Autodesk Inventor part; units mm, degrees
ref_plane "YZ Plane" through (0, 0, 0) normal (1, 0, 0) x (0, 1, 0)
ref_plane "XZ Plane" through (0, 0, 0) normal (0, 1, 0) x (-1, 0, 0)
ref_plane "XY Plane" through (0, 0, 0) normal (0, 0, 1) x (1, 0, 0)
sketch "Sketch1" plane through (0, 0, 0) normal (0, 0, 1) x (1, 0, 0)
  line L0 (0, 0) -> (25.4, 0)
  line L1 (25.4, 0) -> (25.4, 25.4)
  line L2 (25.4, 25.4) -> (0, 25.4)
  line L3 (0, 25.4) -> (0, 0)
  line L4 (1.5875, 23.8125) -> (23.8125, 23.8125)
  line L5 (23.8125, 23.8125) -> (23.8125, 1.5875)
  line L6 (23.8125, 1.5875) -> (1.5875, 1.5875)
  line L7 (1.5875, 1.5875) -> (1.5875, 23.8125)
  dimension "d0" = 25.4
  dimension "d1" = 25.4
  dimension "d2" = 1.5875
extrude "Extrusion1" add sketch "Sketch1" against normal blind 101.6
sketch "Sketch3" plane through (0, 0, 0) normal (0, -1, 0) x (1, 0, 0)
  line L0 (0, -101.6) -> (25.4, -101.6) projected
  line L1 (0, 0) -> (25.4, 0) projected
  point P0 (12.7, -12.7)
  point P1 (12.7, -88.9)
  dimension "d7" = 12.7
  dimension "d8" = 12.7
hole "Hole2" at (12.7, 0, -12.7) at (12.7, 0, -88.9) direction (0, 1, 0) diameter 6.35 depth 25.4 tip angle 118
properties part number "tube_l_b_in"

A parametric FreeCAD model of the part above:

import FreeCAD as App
import Part
import Sketcher
from FreeCAD import Vector
Q = App.Units.Quantity


def add_polygon(sketch, points):
    """Adds a closed chain of lines whose ends are joined by coincident constraints."""
    first, n = sketch.GeometryCount, len(points)
    for a, b in zip(points, points[1:] + points[:1]):
        sketch.addGeometry(Part.LineSegment(App.Vector(*a, 0), App.Vector(*b, 0)), False)
    for i in range(n):
        sketch.addConstraint(Sketcher.Constraint("Coincident", first + i, 2, first + (i + 1) % n, 1))

doc = App.newDocument("Part")
body = doc.addObject("PartDesign::Body", "Body")

# Sketch on XY plane
sketch1 = doc.addObject("Sketcher::SketchObject", "Sketch")
body.addObject(sketch1)
sketch1.AttachmentSupport = (doc.XY_Plane, [""])
sketch1.MapMode = "FlatFace"
add_polygon(sketch1, [(0, 25), (0, 0), (25, 0), (25, 25)])  # lines 0-3
add_polygon(sketch1, [(2, 2), (2, 24), (24, 24), (24, 2)])  # lines 4-7
sketch1.addConstraint([
    Sketcher.Constraint("Vertical", 0),
    Sketcher.Constraint("Horizontal", 1),
    Sketcher.Constraint("Vertical", 2),
    Sketcher.Constraint("Horizontal", 3),
    Sketcher.Constraint("Vertical", 4),
    Sketcher.Constraint("Horizontal", 5),
    Sketcher.Constraint("Vertical", 6),
    Sketcher.Constraint("Horizontal", 7),
    Sketcher.Constraint("Coincident", 0, 2, -1, 1),
    Sketcher.Constraint("Equal", 3, 0),
    Sketcher.Constraint("Equal", 7, 4),
    Sketcher.Constraint("DistanceX", 1, 1, 1, 2, Q("1 in")),
    Sketcher.Constraint("DistanceX", -1, 1, 4, 2, Q("0.0625 in")),
    Sketcher.Constraint("DistanceY", -1, 1, 6, 2, Q("0.0625 in")),
    Sketcher.Constraint("DistanceY", 4, 2, 3, 2, Q("0.0625 in")),
])
pad1 = doc.addObject("PartDesign::Pad", "Pad")
body.addObject(pad1)
pad1.Profile = sketch1
pad1.Length = Q("4 in")
pad1.Reversed = True

# Sketch on XZ plane
sketch2 = doc.addObject("Sketcher::SketchObject", "Sketch001")
body.addObject(sketch2)
sketch2.AttachmentSupport = (doc.XZ_Plane, [""])
sketch2.MapMode = "FlatFace"
sketch2.addGeometry([
    Part.Circle(Vector(12.7, -12.7, 0), Vector(0, 0, 1), 3.2),
    Part.Circle(Vector(12.7, -88.9, 0), Vector(0, 0, 1), 3.2),
], False)
sketch2.addConstraint([
    Sketcher.Constraint("Equal", 0, 1),
    Sketcher.Constraint("Vertical", 0, 3, 1, 3),
    Sketcher.Constraint("Diameter", 0, Q("0.25 in")),
    Sketcher.Constraint("DistanceY", 1, 3, 0, 3, Q("3 in")),
    Sketcher.Constraint("DistanceX", -1, 1, 0, 3, Q("0.5 in")),
    Sketcher.Constraint("DistanceY", 0, 3, -1, 1, Q("0.5 in")),
])
doc.recompute()
hole = doc.addObject("PartDesign::Hole", "Hole")
body.addObject(hole)
hole.Profile = sketch2
hole.ThreadType = "None"
hole.Diameter = Q("0.25 in")
hole.DepthType = "Dimension"
hole.Depth = Q("1 in")
hole.DrillPoint = "Angled"
hole.DrillPointAngle = 118

doc.recompute()
